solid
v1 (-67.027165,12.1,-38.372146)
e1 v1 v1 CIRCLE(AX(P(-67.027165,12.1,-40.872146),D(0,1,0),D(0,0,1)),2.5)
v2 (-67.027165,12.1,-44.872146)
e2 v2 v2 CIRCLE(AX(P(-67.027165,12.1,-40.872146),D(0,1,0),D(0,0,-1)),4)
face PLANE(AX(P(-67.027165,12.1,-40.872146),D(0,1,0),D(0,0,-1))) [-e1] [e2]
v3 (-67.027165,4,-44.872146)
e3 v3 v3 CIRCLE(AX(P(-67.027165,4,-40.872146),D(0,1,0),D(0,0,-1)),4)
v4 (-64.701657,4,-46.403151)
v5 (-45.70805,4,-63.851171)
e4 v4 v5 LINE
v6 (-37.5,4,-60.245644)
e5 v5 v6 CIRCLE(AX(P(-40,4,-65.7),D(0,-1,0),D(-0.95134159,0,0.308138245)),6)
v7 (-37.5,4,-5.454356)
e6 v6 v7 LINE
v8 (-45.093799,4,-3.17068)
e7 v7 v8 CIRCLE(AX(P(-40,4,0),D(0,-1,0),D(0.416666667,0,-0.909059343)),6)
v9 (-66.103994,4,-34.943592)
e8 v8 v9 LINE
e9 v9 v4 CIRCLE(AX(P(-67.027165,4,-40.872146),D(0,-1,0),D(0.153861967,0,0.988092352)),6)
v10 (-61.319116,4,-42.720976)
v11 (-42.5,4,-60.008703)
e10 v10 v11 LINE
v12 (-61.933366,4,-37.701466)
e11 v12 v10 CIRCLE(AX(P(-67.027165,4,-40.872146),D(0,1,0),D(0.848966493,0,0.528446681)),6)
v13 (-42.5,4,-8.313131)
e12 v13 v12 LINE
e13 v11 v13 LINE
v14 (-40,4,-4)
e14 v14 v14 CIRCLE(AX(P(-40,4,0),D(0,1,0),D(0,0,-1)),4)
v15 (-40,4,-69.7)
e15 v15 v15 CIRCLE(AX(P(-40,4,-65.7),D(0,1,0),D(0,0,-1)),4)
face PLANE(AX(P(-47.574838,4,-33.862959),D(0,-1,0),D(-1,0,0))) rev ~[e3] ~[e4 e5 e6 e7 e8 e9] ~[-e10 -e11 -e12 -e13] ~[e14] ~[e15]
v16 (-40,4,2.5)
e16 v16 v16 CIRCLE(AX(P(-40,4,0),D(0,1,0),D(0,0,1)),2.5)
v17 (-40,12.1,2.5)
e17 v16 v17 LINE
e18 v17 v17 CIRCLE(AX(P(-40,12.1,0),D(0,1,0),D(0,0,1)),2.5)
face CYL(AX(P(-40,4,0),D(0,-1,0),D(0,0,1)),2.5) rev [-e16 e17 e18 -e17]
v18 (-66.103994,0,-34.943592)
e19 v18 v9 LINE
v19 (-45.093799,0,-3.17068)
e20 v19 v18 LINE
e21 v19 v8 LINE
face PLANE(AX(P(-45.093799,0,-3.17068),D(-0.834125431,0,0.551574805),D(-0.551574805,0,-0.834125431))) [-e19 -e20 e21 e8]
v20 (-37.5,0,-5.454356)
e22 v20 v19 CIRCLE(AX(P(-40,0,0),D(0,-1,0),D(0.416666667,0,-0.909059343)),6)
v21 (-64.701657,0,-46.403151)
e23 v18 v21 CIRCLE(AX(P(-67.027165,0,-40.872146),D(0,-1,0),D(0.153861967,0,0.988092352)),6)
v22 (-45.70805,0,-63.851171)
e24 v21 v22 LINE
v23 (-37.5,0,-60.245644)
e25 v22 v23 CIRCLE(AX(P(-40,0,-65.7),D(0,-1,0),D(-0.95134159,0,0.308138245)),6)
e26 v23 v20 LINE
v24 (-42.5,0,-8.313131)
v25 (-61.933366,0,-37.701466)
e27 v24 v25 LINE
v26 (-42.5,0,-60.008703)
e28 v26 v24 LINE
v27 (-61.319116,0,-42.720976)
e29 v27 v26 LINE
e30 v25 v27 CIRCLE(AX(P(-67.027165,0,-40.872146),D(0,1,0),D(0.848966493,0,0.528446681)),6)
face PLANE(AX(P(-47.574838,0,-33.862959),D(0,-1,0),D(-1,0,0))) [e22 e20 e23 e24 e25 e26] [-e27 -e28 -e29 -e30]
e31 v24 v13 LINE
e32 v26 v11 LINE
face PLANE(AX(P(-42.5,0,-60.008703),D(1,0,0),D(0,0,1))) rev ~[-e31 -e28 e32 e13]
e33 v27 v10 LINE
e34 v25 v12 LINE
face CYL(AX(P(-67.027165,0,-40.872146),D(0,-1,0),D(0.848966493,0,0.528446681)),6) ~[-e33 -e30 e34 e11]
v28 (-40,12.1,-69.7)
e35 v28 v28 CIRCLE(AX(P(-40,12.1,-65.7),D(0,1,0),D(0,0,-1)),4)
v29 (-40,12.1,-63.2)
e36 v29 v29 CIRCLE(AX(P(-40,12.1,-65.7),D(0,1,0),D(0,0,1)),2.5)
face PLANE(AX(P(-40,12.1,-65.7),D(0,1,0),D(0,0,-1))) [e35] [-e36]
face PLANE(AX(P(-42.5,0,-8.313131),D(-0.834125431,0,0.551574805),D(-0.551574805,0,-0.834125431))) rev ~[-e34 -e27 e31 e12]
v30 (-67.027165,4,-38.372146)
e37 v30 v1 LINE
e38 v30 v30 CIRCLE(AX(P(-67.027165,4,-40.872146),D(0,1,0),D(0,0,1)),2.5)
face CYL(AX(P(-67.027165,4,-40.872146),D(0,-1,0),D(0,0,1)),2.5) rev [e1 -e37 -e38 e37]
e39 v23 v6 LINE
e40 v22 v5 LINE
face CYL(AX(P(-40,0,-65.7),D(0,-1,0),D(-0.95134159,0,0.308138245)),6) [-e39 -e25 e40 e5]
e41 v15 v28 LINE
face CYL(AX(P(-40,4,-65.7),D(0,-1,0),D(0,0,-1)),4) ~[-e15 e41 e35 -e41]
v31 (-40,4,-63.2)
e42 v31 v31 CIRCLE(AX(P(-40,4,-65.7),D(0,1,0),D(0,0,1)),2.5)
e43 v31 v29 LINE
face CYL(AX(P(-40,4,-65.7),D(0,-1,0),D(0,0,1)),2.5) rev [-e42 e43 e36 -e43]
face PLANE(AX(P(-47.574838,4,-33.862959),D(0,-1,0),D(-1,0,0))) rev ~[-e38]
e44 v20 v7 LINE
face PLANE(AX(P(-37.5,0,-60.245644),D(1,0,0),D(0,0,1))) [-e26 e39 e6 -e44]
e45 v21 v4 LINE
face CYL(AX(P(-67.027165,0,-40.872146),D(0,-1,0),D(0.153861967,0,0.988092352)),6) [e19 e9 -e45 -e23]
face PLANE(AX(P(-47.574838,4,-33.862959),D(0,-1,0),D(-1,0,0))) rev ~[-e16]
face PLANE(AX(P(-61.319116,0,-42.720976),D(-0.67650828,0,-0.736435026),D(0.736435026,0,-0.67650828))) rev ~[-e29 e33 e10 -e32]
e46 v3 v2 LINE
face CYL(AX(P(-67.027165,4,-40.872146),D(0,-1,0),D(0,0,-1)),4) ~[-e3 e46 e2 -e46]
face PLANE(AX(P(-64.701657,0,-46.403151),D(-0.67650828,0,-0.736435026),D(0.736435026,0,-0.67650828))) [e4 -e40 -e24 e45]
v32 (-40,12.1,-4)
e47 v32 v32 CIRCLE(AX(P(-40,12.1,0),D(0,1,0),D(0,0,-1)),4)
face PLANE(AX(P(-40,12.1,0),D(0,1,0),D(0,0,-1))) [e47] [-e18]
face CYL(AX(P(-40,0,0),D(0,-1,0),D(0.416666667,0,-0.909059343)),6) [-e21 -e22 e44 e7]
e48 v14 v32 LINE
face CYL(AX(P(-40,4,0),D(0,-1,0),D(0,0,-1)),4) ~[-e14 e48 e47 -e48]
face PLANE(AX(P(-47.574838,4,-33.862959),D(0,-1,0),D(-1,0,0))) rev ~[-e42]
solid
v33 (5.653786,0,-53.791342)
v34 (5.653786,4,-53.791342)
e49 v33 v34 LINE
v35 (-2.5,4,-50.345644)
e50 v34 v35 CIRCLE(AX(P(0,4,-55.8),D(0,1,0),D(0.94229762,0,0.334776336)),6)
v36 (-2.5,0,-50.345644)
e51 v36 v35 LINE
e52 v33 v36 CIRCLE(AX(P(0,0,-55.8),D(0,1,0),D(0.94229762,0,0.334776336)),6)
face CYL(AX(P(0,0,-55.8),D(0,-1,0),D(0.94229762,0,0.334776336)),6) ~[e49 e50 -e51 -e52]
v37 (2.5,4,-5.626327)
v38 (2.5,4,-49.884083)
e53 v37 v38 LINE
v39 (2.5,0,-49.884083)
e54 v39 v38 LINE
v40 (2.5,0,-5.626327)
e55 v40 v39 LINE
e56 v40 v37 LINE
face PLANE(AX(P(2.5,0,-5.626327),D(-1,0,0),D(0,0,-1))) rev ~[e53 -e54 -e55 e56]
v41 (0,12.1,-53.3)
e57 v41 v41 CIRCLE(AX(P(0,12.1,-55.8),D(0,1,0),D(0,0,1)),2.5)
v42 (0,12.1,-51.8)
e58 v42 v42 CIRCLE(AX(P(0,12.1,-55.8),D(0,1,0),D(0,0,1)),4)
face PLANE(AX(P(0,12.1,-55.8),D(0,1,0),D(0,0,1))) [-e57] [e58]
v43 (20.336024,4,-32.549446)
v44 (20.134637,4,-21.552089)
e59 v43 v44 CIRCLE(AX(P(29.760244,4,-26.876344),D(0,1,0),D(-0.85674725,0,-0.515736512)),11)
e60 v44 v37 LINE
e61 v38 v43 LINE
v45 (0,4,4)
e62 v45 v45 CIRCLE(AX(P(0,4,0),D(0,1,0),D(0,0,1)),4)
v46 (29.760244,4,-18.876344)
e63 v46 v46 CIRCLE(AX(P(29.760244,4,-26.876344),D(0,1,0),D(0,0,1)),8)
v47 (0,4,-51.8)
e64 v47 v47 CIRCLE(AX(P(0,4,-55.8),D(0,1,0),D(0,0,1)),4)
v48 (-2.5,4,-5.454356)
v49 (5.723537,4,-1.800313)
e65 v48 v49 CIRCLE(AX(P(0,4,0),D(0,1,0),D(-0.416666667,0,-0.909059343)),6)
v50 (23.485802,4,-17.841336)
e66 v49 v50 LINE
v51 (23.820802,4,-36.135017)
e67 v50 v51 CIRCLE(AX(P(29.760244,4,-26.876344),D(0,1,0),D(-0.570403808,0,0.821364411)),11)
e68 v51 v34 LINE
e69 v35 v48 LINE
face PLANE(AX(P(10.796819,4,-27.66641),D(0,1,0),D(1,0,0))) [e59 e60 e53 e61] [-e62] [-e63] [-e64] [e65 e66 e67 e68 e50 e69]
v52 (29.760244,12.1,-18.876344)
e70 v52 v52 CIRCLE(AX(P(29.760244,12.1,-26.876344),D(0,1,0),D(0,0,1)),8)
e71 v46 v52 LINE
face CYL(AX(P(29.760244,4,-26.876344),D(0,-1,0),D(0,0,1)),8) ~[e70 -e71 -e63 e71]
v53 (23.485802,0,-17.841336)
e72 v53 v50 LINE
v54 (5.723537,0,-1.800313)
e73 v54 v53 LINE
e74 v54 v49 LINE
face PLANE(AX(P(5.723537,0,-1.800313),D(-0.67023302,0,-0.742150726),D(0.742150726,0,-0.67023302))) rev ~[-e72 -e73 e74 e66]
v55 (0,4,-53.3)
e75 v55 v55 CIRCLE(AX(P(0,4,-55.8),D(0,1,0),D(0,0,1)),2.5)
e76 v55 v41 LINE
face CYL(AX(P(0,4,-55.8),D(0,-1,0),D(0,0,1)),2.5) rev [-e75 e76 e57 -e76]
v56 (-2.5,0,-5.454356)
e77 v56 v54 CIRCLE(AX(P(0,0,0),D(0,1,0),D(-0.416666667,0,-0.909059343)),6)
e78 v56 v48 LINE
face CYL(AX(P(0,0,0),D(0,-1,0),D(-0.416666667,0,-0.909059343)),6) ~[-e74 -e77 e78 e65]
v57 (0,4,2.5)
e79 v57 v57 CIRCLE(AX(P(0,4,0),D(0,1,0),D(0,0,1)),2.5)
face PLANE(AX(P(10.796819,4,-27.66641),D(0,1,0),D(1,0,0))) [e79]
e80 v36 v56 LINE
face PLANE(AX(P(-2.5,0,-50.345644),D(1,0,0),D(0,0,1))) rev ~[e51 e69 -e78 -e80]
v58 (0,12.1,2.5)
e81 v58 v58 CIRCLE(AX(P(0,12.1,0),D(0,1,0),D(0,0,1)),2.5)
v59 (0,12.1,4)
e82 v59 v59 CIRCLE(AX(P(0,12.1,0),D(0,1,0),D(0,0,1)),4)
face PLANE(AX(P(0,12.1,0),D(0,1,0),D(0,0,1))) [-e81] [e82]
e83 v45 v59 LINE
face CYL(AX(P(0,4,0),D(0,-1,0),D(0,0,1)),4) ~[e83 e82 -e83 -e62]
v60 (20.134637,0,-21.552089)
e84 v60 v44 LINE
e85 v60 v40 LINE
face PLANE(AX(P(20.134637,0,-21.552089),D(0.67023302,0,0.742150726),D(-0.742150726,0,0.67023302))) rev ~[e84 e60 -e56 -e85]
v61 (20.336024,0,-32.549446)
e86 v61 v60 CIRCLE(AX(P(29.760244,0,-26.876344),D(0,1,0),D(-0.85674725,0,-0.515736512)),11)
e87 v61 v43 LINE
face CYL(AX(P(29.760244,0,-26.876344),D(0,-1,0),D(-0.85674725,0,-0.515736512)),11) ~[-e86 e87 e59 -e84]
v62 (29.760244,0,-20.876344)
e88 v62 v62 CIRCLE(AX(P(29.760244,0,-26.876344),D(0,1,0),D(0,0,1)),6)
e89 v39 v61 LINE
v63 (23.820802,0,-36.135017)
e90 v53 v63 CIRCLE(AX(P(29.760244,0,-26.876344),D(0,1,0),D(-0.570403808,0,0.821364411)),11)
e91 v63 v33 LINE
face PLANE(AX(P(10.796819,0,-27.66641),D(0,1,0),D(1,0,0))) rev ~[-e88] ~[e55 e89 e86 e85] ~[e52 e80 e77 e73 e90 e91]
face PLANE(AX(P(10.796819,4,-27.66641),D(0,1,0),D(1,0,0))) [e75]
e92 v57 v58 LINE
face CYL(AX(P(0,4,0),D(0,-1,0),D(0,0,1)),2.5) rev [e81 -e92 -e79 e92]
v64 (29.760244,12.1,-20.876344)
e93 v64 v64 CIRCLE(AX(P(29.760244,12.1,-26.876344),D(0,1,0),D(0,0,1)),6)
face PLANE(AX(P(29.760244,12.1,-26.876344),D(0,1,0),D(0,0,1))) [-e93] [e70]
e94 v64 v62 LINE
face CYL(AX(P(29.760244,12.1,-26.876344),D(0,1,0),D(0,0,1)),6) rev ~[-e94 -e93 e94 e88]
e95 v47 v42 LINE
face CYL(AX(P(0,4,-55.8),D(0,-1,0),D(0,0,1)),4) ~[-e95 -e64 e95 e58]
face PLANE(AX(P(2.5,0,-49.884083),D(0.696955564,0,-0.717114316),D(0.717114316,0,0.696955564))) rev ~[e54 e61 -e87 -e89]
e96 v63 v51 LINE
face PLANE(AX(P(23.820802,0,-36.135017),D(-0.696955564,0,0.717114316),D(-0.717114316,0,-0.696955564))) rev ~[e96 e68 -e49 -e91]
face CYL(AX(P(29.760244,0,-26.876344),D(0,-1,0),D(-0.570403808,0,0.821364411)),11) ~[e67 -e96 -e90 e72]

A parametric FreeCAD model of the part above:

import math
import FreeCAD as App
import Part
import Sketcher

V = App.Vector
Q = App.Units.Quantity

doc = App.newDocument("Part")
params = doc.addObject("Spreadsheet::Sheet", "Params")
for row, (alias, value) in enumerate([
    ("sketch1_radius", "6 mm"),
    ("pad1_length", "4 mm"),
    ("sketch2_diameter", "8 mm"),
    ("sketch2_diameter2", "5 mm"),
    ("pad2_length", "8.1 mm"),
    ("sketch3_radius", "6 mm"),
    ("sketch3_radius2", "11 mm"),
    ("pad3_length", "4 mm"),
    ("sketch4_diameter", "8 mm"),
    ("sketch4_diameter2", "5 mm"),
    ("sketch4_diameter3", "16 mm"),
    ("pad4_length", "8.1 mm"),
    ("sketch5_diameter", "12 mm"),
], start=1):
    params.set(f"A{row}", alias)
    params.set(f"B{row}", "=" + value)
    params.setAlias(f"B{row}", alias)

body = doc.addObject("PartDesign::Body", "Body")

sketch1 = body.newObject("Sketcher::SketchObject", "Sketch")
sketch1.AttachmentSupport = (doc.getObject("XZ_Plane"), [""])
sketch1.MapMode = "FlatFace"
sketch1.addGeometry([
    Part.LineSegment(V(-46, -64, 0), V(-65, -46, 0)),
    Part.ArcOfCircle(Part.Circle(V(-67, -41, 0), V(0, 0, 1), 6), math.radians(81), math.radians(293)),
    Part.LineSegment(V(-66, -35, 0), V(-45, -3, 0)),
    Part.ArcOfCircle(Part.Circle(V(-40, 0, 0), V(0, 0, 1), 6), math.radians(-65), math.radians(212)),
    Part.LineSegment(V(-38, -5, 0), V(-38, -60, 0)),
    Part.ArcOfCircle(Part.Circle(V(-40, -66, 0), V(0, 0, 1), 6), math.radians(162), math.radians(425)),
    Part.LineSegment(V(-61, -43, 0), V(-42, -60, 0)),
    Part.LineSegment(V(-42, -60, 0), V(-42, -8, 0)),
    Part.LineSegment(V(-42, -8, 0), V(-62, -38, 0)),
    Part.ArcOfCircle(Part.Circle(V(-67, -41, 0), V(0, 0, 1), 6), math.radians(-18), math.radians(32)),
], False)
sketch1.addConstraint([
    Sketcher.Constraint("Coincident", 0, 2, 1, 2),
    Sketcher.Constraint("Coincident", 1, 1, 2, 1),
    Sketcher.Constraint("Coincident", 2, 2, 3, 2),
    Sketcher.Constraint("Coincident", 3, 1, 4, 1),
    Sketcher.Constraint("Coincident", 4, 2, 5, 2),
    Sketcher.Constraint("Coincident", 5, 1, 0, 1),
    Sketcher.Constraint("Coincident", 6, 2, 7, 1),
    Sketcher.Constraint("Coincident", 7, 2, 8, 1),
    Sketcher.Constraint("Coincident", 8, 2, 9, 2),
    Sketcher.Constraint("Coincident", 9, 1, 6, 1),
    Sketcher.Constraint("Vertical", 4),
    Sketcher.Constraint("Vertical", 7),
    Sketcher.Constraint("Coincident", 9, 3, 1, 3),
    Sketcher.Constraint("Equal", 1, 3),
    Sketcher.Constraint("Equal", 3, 5),
    Sketcher.Constraint("Equal", 5, 9),
    Sketcher.Constraint("PointOnObject", 3, 3, -1),
    Sketcher.Constraint("Parallel", 0, 6),
    Sketcher.Constraint("Parallel", 2, 8),
    Sketcher.Constraint("Vertical", 3, 3, 5, 3),
    Sketcher.Constraint("Radius", 1, Q("6 mm")),
    Sketcher.Constraint("DistanceX", 3, 3, -1, 1, Q("40 mm")),
    Sketcher.Constraint("DistanceX", 6, 2, 4, 2, Q("5 mm")),
    Sketcher.Constraint("DistanceY", 5, 3, -1, 1, Q("65.7 mm")),
    Sketcher.Constraint("DistanceX", 3, 1, -1, 1, Q("37.5 mm")),
    Sketcher.Constraint("DistanceY", 7, 1, 7, 2, Q("51.695572 mm")),
    Sketcher.Constraint("DistanceX", 2, 2, -1, 1, Q("45.093799 mm")),
    Sketcher.Constraint("DistanceX", 1, 3, 8, 2, Q("5.093799 mm")),
    Sketcher.Constraint("DistanceY", 0, 2, -1, 1, Q("46.403151 mm")),
    Sketcher.Constraint("DistanceX", 5, 1, -1, 1, Q("45.70805 mm")),
    Sketcher.Constraint("DistanceY", 7, 2, -1, 1, Q("8.313131 mm")),
    Sketcher.Constraint("DistanceX", 1, 3, 0, 2, Q("2.325508 mm")),
    Sketcher.Constraint("DistanceX", 1, 3, 1, 1, Q("0.923172 mm")),
])
sketch1.setExpression("Constraints[20]", "Params.sketch1_radius")
pad1 = body.newObject("PartDesign::Pad", "Pad")
pad1.Profile = sketch1
pad1.setExpression("Length", "Params.pad1_length")
pad1.Reversed = True

sketch2 = body.newObject("Sketcher::SketchObject", "Sketch001")
sketch2.AttachmentSupport = (doc.getObject("XZ_Plane"), [""])
sketch2.MapMode = "FlatFace"
sketch2.AttachmentOffset = App.Placement(V(0, 0, -4), App.Rotation())
sketch2.addGeometry([
    Part.Circle(V(-67, -40.9, 0), V(0, 0, 1), 4),
    Part.Circle(V(-67, -40.9, 0), V(0, 0, 1), 2.5),
    Part.Circle(V(-40, -65.7, 0), V(0, 0, 1), 4),
    Part.Circle(V(-40, -65.7, 0), V(0, 0, 1), 2.5),
    Part.Circle(V(-40, 0, 0), V(0, 0, 1), 4),
    Part.Circle(V(-40, 0, 0), V(0, 0, 1), 2.5),
], False)
sketch2.addConstraint([
    Sketcher.Constraint("Coincident", 1, 3, 0, 3),
    Sketcher.Constraint("Coincident", 3, 3, 2, 3),
    Sketcher.Constraint("Coincident", 5, 3, 4, 3),
    Sketcher.Constraint("Equal", 0, 2),
    Sketcher.Constraint("Equal", 1, 3),
    Sketcher.Constraint("Equal", 2, 4),
    Sketcher.Constraint("Equal", 3, 5),
    Sketcher.Constraint("PointOnObject", 4, 3, -1),
    Sketcher.Constraint("Vertical", 3, 3, 4, 3),
    Sketcher.Constraint("Diameter", 0, Q("8 mm")),
    Sketcher.Constraint("Diameter", 1, Q("5 mm")),
    Sketcher.Constraint("DistanceX", 2, 3, -1, 1, Q("40 mm")),
    Sketcher.Constraint("DistanceY", 2, 3, -1, 1, Q("65.7 mm")),
    Sketcher.Constraint("DistanceX", 0, 3, -1, 1, Q("67.027165 mm")),
    Sketcher.Constraint("DistanceY", 0, 3, -1, 1, Q("40.872146 mm")),
])
sketch2.setExpression("Constraints[9]", "Params.sketch2_diameter")
sketch2.setExpression("Constraints[10]", "Params.sketch2_diameter2")
pad2 = body.newObject("PartDesign::Pad", "Pad001")
pad2.Profile = sketch2
pad2.setExpression("Length", "Params.pad2_length")
pad2.Reversed = True
body2 = doc.addObject("PartDesign::Body", "Body001")

sketch3 = body2.newObject("Sketcher::SketchObject", "Sketch002")
sketch3.AttachmentSupport = (doc.getObject("XZ_Plane001"), [""])
sketch3.MapMode = "FlatFace"
sketch3.addGeometry([
    Part.LineSegment(V(-2, -50, 0), V(-2, -5, 0)),
    Part.ArcOfCircle(Part.Circle(V(0, 0, 0), V(0, 0, 1), 6), math.radians(-17), math.radians(245)),
    Part.LineSegment(V(6, -2, 0), V(23, -18, 0)),
    Part.ArcOfCircle(Part.Circle(V(30, -27, 0), V(0, 0, 1), 11), math.radians(-123), math.radians(125)),
    Part.LineSegment(V(24, -36, 0), V(6, -54, 0)),
    Part.ArcOfCircle(Part.Circle(V(0, -56, 0), V(0, 0, 1), 6), math.radians(115), math.radians(380)),
    Part.ArcOfCircle(Part.Circle(V(30, -27, 0), V(0, 0, 1), 11), math.radians(151), math.radians(211)),
    Part.LineSegment(V(20, -22, 0), V(2, -6, 0)),
    Part.LineSegment(V(2, -6, 0), V(2, -50, 0)),
    Part.LineSegment(V(2, -50, 0), V(20, -33, 0)),
], False)
sketch3.addConstraint([
    Sketcher.Constraint("Coincident", 0, 2, 1, 2),
    Sketcher.Constraint("Coincident", 1, 1, 2, 1),
    Sketcher.Constraint("Coincident", 2, 2, 3, 2),
    Sketcher.Constraint("Coincident", 3, 1, 4, 1),
    Sketcher.Constraint("Coincident", 4, 2, 5, 2),
    Sketcher.Constraint("Coincident", 5, 1, 0, 1),
    Sketcher.Constraint("Coincident", 6, 1, 7, 1),
    Sketcher.Constraint("Coincident", 7, 2, 8, 1),
    Sketcher.Constraint("Coincident", 8, 2, 9, 1),
    Sketcher.Constraint("Coincident", 9, 2, 6, 2),
    Sketcher.Constraint("Vertical", 0),
    Sketcher.Constraint("Vertical", 8),
    Sketcher.Constraint("Coincident", 1, 3, -1, 1),
    Sketcher.Constraint("Coincident", 6, 3, 3, 3),
    Sketcher.Constraint("Equal", 1, 5),
    Sketcher.Constraint("Equal", 3, 6),
    Sketcher.Constraint("PointOnObject", 5, 3, -2),
    Sketcher.Constraint("Parallel", 2, 7),
    Sketcher.Constraint("Parallel", 4, 9),
    Sketcher.Constraint("Radius", 1, Q("6 mm")),
    Sketcher.Constraint("Radius", 3, Q("11 mm")),
    Sketcher.Constraint("DistanceX", 0, 2, 7, 2, Q("5 mm")),
    Sketcher.Constraint("DistanceY", 5, 3, -1, 1, Q("55.8 mm")),
    Sketcher.Constraint("DistanceX", 0, 2, -1, 1, Q("2.5 mm")),
    Sketcher.Constraint("DistanceX", 2, 2, 3, 1, Q("0.335 mm")),
    Sketcher.Constraint("Distance", 2, Q("23.933501 mm")),
    Sketcher.Constraint("Distance", 4, Q("25.333501 mm")),
    Sketcher.Constraint("DistanceY", 4, 2, 5, 1, Q("3.445698 mm")),
    Sketcher.Constraint("DistanceY", 5, 1, 3, 3, Q("23.4693 mm")),
    Sketcher.Constraint("DistanceX", 1, 1, 6, 1, Q("14.4111 mm")),
    Sketcher.Constraint("DistanceY", 9, 2, 3, 3, Q("5.673102 mm")),
    Sketcher.Constraint("Distance", 7, Q("23.761531 mm")),
])
sketch3.setExpression("Constraints[19]", "Params.sketch3_radius")
sketch3.setExpression("Constraints[20]", "Params.sketch3_radius2")
pad3 = body2.newObject("PartDesign::Pad", "Pad002")
pad3.Profile = sketch3
pad3.setExpression("Length", "Params.pad3_length")
pad3.Reversed = True

sketch4 = body2.newObject("Sketcher::SketchObject", "Sketch003")
sketch4.AttachmentSupport = (doc.getObject("XZ_Plane001"), [""])
sketch4.MapMode = "FlatFace"
sketch4.AttachmentOffset = App.Placement(V(0, 0, -4), App.Rotation())
sketch4.addGeometry([
    Part.Circle(V(0, -55.8, 0), V(0, 0, 1), 4),
    Part.Circle(V(0, -55.8, 0), V(0, 0, 1), 2.5),
    Part.Circle(V(0, 0, 0), V(0, 0, 1), 4),
    Part.Circle(V(0, 0, 0), V(0, 0, 1), 2.5),
    Part.Circle(V(29.8, -26.9, 0), V(0, 0, 1), 8),
], False)
sketch4.addConstraint([
    Sketcher.Constraint("Coincident", 2, 3, -1, 1),
    Sketcher.Constraint("Coincident", 3, 3, -1, 1),
    Sketcher.Constraint("Coincident", 1, 3, 0, 3),
    Sketcher.Constraint("Equal", 0, 2),
    Sketcher.Constraint("Equal", 1, 3),
    Sketcher.Constraint("PointOnObject", 0, 3, -2),
    Sketcher.Constraint("Diameter", 0, Q("8 mm")),
    Sketcher.Constraint("Diameter", 1, Q("5 mm")),
    Sketcher.Constraint("Diameter", 4, Q("16 mm")),
    Sketcher.Constraint("DistanceY", 0, 3, -1, 1, Q("55.8 mm")),
    Sketcher.Constraint("DistanceX", -1, 1, 4, 3, Q("29.760244 mm")),
    Sketcher.Constraint("DistanceY", 4, 3, -1, 1, Q("26.876344 mm")),
])
sketch4.setExpression("Constraints[6]", "Params.sketch4_diameter")
sketch4.setExpression("Constraints[7]", "Params.sketch4_diameter2")
sketch4.setExpression("Constraints[8]", "Params.sketch4_diameter3")
pad4 = body2.newObject("PartDesign::Pad", "Pad003")
pad4.Profile = sketch4
pad4.setExpression("Length", "Params.pad4_length")
pad4.Reversed = True

sketch5 = body2.newObject("Sketcher::SketchObject", "Sketch004")
sketch5.AttachmentSupport = (doc.getObject("XZ_Plane001"), [""])
sketch5.MapMode = "FlatFace"
sketch5.AttachmentOffset = App.Placement(V(0, 0, -12.1), App.Rotation())
sketch5.addGeometry(Part.Circle(V(30, -27, 0), V(0, 0, 1), 6), False)
sketch5.addConstraint([
    Sketcher.Constraint("Diameter", 0, Q("12 mm")),
    Sketcher.Constraint("DistanceX", -1, 1, 0, 3, Q("29.760244 mm")),
    Sketcher.Constraint("DistanceY", 0, 3, -1, 1, Q("26.876344 mm")),
])
sketch5.setExpression("Constraints[0]", "Params.sketch5_diameter")
pocket1 = body2.newObject("PartDesign::Pocket", "Pocket")
pocket1.Profile = sketch5
pocket1.Type = "ThroughAll"
pocket1.Reversed = True

doc.recompute()
